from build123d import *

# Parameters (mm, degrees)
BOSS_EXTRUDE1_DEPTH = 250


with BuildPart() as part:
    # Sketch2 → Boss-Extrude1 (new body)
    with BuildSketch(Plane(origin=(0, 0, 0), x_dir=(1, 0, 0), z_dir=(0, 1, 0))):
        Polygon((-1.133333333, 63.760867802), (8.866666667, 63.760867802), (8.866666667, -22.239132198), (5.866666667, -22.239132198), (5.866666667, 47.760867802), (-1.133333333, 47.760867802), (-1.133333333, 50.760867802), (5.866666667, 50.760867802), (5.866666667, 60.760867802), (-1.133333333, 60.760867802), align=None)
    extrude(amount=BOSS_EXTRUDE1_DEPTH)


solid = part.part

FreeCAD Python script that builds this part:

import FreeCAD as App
import Part
import Sketcher
from FreeCAD import Vector
Q = App.Units.Quantity

doc = App.newDocument("Part")
body = doc.addObject("PartDesign::Body", "Body")

sketch1 = body.newObject("Sketcher::SketchObject", "Sketch")
sketch1.AttachmentSupport = (doc.getObject("XZ_Plane"), [""])
sketch1.MapMode = "FlatFace"
sketch1.addGeometry([
    Part.LineSegment(Vector(8.9, -63.8, 0), Vector(-1.1, -63.8, 0)),
    Part.LineSegment(Vector(-1.1, -63.8, 0), Vector(-1.1, -60.8, 0)),
    Part.LineSegment(Vector(-1.1, -60.8, 0), Vector(5.9, -60.8, 0)),
    Part.LineSegment(Vector(5.9, -60.8, 0), Vector(5.9, -50.8, 0)),
    Part.LineSegment(Vector(5.9, -50.8, 0), Vector(-1.1, -50.8, 0)),
    Part.LineSegment(Vector(-1.1, -50.8, 0), Vector(-1.1, -47.8, 0)),
    Part.LineSegment(Vector(-1.1, -47.8, 0), Vector(5.9, -47.8, 0)),
    Part.LineSegment(Vector(5.9, -47.8, 0), Vector(5.9, 22.2, 0)),
    Part.LineSegment(Vector(5.9, 22.2, 0), Vector(8.9, 22.2, 0)),
    Part.LineSegment(Vector(8.9, 22.2, 0), Vector(8.9, -63.8, 0)),
], False)
sketch1.addConstraint([
    Sketcher.Constraint("Coincident", 0, 2, 1, 1),
    Sketcher.Constraint("Coincident", 1, 2, 2, 1),
    Sketcher.Constraint("Coincident", 2, 2, 3, 1),
    Sketcher.Constraint("Coincident", 3, 2, 4, 1),
    Sketcher.Constraint("Coincident", 4, 2, 5, 1),
    Sketcher.Constraint("Coincident", 5, 2, 6, 1),
    Sketcher.Constraint("Coincident", 6, 2, 7, 1),
    Sketcher.Constraint("Coincident", 7, 2, 8, 1),
    Sketcher.Constraint("Coincident", 8, 2, 9, 1),
    Sketcher.Constraint("Coincident", 9, 2, 0, 1),
    Sketcher.Constraint("Horizontal", 0),
    Sketcher.Constraint("Vertical", 1),
    Sketcher.Constraint("Horizontal", 2),
    Sketcher.Constraint("Vertical", 3),
    Sketcher.Constraint("Horizontal", 4),
    Sketcher.Constraint("Vertical", 5),
    Sketcher.Constraint("Horizontal", 6),
    Sketcher.Constraint("Vertical", 7),
    Sketcher.Constraint("Horizontal", 8),
    Sketcher.Constraint("Vertical", 9),
    Sketcher.Constraint("Vertical", 1, 2, 4, 2),
    Sketcher.Constraint("Vertical", 3, 2, 6, 2),
    Sketcher.Constraint("Equal", 8, 1),
    Sketcher.Constraint("Equal", 0, 3),
    Sketcher.Constraint("Equal", 1, 5),
    Sketcher.Constraint("DistanceX", 0, 2, 0, 1, Q("10 mm")),
    Sketcher.Constraint("DistanceX", 2, 1, 2, 2, Q("7 mm")),
    Sketcher.Constraint("DistanceY", 7, 1, 7, 2, Q("70 mm")),
    Sketcher.Constraint("DistanceX", 0, 2, -1, 1, Q("1.133333 mm")),
    Sketcher.Constraint("DistanceY", 0, 2, -1, 1, Q("63.760868 mm")),
])
pad1 = body.newObject("PartDesign::Pad", "Pad")
pad1.Profile = sketch1
pad1.Length = 250
pad1.Reversed = True

doc.recompute()
